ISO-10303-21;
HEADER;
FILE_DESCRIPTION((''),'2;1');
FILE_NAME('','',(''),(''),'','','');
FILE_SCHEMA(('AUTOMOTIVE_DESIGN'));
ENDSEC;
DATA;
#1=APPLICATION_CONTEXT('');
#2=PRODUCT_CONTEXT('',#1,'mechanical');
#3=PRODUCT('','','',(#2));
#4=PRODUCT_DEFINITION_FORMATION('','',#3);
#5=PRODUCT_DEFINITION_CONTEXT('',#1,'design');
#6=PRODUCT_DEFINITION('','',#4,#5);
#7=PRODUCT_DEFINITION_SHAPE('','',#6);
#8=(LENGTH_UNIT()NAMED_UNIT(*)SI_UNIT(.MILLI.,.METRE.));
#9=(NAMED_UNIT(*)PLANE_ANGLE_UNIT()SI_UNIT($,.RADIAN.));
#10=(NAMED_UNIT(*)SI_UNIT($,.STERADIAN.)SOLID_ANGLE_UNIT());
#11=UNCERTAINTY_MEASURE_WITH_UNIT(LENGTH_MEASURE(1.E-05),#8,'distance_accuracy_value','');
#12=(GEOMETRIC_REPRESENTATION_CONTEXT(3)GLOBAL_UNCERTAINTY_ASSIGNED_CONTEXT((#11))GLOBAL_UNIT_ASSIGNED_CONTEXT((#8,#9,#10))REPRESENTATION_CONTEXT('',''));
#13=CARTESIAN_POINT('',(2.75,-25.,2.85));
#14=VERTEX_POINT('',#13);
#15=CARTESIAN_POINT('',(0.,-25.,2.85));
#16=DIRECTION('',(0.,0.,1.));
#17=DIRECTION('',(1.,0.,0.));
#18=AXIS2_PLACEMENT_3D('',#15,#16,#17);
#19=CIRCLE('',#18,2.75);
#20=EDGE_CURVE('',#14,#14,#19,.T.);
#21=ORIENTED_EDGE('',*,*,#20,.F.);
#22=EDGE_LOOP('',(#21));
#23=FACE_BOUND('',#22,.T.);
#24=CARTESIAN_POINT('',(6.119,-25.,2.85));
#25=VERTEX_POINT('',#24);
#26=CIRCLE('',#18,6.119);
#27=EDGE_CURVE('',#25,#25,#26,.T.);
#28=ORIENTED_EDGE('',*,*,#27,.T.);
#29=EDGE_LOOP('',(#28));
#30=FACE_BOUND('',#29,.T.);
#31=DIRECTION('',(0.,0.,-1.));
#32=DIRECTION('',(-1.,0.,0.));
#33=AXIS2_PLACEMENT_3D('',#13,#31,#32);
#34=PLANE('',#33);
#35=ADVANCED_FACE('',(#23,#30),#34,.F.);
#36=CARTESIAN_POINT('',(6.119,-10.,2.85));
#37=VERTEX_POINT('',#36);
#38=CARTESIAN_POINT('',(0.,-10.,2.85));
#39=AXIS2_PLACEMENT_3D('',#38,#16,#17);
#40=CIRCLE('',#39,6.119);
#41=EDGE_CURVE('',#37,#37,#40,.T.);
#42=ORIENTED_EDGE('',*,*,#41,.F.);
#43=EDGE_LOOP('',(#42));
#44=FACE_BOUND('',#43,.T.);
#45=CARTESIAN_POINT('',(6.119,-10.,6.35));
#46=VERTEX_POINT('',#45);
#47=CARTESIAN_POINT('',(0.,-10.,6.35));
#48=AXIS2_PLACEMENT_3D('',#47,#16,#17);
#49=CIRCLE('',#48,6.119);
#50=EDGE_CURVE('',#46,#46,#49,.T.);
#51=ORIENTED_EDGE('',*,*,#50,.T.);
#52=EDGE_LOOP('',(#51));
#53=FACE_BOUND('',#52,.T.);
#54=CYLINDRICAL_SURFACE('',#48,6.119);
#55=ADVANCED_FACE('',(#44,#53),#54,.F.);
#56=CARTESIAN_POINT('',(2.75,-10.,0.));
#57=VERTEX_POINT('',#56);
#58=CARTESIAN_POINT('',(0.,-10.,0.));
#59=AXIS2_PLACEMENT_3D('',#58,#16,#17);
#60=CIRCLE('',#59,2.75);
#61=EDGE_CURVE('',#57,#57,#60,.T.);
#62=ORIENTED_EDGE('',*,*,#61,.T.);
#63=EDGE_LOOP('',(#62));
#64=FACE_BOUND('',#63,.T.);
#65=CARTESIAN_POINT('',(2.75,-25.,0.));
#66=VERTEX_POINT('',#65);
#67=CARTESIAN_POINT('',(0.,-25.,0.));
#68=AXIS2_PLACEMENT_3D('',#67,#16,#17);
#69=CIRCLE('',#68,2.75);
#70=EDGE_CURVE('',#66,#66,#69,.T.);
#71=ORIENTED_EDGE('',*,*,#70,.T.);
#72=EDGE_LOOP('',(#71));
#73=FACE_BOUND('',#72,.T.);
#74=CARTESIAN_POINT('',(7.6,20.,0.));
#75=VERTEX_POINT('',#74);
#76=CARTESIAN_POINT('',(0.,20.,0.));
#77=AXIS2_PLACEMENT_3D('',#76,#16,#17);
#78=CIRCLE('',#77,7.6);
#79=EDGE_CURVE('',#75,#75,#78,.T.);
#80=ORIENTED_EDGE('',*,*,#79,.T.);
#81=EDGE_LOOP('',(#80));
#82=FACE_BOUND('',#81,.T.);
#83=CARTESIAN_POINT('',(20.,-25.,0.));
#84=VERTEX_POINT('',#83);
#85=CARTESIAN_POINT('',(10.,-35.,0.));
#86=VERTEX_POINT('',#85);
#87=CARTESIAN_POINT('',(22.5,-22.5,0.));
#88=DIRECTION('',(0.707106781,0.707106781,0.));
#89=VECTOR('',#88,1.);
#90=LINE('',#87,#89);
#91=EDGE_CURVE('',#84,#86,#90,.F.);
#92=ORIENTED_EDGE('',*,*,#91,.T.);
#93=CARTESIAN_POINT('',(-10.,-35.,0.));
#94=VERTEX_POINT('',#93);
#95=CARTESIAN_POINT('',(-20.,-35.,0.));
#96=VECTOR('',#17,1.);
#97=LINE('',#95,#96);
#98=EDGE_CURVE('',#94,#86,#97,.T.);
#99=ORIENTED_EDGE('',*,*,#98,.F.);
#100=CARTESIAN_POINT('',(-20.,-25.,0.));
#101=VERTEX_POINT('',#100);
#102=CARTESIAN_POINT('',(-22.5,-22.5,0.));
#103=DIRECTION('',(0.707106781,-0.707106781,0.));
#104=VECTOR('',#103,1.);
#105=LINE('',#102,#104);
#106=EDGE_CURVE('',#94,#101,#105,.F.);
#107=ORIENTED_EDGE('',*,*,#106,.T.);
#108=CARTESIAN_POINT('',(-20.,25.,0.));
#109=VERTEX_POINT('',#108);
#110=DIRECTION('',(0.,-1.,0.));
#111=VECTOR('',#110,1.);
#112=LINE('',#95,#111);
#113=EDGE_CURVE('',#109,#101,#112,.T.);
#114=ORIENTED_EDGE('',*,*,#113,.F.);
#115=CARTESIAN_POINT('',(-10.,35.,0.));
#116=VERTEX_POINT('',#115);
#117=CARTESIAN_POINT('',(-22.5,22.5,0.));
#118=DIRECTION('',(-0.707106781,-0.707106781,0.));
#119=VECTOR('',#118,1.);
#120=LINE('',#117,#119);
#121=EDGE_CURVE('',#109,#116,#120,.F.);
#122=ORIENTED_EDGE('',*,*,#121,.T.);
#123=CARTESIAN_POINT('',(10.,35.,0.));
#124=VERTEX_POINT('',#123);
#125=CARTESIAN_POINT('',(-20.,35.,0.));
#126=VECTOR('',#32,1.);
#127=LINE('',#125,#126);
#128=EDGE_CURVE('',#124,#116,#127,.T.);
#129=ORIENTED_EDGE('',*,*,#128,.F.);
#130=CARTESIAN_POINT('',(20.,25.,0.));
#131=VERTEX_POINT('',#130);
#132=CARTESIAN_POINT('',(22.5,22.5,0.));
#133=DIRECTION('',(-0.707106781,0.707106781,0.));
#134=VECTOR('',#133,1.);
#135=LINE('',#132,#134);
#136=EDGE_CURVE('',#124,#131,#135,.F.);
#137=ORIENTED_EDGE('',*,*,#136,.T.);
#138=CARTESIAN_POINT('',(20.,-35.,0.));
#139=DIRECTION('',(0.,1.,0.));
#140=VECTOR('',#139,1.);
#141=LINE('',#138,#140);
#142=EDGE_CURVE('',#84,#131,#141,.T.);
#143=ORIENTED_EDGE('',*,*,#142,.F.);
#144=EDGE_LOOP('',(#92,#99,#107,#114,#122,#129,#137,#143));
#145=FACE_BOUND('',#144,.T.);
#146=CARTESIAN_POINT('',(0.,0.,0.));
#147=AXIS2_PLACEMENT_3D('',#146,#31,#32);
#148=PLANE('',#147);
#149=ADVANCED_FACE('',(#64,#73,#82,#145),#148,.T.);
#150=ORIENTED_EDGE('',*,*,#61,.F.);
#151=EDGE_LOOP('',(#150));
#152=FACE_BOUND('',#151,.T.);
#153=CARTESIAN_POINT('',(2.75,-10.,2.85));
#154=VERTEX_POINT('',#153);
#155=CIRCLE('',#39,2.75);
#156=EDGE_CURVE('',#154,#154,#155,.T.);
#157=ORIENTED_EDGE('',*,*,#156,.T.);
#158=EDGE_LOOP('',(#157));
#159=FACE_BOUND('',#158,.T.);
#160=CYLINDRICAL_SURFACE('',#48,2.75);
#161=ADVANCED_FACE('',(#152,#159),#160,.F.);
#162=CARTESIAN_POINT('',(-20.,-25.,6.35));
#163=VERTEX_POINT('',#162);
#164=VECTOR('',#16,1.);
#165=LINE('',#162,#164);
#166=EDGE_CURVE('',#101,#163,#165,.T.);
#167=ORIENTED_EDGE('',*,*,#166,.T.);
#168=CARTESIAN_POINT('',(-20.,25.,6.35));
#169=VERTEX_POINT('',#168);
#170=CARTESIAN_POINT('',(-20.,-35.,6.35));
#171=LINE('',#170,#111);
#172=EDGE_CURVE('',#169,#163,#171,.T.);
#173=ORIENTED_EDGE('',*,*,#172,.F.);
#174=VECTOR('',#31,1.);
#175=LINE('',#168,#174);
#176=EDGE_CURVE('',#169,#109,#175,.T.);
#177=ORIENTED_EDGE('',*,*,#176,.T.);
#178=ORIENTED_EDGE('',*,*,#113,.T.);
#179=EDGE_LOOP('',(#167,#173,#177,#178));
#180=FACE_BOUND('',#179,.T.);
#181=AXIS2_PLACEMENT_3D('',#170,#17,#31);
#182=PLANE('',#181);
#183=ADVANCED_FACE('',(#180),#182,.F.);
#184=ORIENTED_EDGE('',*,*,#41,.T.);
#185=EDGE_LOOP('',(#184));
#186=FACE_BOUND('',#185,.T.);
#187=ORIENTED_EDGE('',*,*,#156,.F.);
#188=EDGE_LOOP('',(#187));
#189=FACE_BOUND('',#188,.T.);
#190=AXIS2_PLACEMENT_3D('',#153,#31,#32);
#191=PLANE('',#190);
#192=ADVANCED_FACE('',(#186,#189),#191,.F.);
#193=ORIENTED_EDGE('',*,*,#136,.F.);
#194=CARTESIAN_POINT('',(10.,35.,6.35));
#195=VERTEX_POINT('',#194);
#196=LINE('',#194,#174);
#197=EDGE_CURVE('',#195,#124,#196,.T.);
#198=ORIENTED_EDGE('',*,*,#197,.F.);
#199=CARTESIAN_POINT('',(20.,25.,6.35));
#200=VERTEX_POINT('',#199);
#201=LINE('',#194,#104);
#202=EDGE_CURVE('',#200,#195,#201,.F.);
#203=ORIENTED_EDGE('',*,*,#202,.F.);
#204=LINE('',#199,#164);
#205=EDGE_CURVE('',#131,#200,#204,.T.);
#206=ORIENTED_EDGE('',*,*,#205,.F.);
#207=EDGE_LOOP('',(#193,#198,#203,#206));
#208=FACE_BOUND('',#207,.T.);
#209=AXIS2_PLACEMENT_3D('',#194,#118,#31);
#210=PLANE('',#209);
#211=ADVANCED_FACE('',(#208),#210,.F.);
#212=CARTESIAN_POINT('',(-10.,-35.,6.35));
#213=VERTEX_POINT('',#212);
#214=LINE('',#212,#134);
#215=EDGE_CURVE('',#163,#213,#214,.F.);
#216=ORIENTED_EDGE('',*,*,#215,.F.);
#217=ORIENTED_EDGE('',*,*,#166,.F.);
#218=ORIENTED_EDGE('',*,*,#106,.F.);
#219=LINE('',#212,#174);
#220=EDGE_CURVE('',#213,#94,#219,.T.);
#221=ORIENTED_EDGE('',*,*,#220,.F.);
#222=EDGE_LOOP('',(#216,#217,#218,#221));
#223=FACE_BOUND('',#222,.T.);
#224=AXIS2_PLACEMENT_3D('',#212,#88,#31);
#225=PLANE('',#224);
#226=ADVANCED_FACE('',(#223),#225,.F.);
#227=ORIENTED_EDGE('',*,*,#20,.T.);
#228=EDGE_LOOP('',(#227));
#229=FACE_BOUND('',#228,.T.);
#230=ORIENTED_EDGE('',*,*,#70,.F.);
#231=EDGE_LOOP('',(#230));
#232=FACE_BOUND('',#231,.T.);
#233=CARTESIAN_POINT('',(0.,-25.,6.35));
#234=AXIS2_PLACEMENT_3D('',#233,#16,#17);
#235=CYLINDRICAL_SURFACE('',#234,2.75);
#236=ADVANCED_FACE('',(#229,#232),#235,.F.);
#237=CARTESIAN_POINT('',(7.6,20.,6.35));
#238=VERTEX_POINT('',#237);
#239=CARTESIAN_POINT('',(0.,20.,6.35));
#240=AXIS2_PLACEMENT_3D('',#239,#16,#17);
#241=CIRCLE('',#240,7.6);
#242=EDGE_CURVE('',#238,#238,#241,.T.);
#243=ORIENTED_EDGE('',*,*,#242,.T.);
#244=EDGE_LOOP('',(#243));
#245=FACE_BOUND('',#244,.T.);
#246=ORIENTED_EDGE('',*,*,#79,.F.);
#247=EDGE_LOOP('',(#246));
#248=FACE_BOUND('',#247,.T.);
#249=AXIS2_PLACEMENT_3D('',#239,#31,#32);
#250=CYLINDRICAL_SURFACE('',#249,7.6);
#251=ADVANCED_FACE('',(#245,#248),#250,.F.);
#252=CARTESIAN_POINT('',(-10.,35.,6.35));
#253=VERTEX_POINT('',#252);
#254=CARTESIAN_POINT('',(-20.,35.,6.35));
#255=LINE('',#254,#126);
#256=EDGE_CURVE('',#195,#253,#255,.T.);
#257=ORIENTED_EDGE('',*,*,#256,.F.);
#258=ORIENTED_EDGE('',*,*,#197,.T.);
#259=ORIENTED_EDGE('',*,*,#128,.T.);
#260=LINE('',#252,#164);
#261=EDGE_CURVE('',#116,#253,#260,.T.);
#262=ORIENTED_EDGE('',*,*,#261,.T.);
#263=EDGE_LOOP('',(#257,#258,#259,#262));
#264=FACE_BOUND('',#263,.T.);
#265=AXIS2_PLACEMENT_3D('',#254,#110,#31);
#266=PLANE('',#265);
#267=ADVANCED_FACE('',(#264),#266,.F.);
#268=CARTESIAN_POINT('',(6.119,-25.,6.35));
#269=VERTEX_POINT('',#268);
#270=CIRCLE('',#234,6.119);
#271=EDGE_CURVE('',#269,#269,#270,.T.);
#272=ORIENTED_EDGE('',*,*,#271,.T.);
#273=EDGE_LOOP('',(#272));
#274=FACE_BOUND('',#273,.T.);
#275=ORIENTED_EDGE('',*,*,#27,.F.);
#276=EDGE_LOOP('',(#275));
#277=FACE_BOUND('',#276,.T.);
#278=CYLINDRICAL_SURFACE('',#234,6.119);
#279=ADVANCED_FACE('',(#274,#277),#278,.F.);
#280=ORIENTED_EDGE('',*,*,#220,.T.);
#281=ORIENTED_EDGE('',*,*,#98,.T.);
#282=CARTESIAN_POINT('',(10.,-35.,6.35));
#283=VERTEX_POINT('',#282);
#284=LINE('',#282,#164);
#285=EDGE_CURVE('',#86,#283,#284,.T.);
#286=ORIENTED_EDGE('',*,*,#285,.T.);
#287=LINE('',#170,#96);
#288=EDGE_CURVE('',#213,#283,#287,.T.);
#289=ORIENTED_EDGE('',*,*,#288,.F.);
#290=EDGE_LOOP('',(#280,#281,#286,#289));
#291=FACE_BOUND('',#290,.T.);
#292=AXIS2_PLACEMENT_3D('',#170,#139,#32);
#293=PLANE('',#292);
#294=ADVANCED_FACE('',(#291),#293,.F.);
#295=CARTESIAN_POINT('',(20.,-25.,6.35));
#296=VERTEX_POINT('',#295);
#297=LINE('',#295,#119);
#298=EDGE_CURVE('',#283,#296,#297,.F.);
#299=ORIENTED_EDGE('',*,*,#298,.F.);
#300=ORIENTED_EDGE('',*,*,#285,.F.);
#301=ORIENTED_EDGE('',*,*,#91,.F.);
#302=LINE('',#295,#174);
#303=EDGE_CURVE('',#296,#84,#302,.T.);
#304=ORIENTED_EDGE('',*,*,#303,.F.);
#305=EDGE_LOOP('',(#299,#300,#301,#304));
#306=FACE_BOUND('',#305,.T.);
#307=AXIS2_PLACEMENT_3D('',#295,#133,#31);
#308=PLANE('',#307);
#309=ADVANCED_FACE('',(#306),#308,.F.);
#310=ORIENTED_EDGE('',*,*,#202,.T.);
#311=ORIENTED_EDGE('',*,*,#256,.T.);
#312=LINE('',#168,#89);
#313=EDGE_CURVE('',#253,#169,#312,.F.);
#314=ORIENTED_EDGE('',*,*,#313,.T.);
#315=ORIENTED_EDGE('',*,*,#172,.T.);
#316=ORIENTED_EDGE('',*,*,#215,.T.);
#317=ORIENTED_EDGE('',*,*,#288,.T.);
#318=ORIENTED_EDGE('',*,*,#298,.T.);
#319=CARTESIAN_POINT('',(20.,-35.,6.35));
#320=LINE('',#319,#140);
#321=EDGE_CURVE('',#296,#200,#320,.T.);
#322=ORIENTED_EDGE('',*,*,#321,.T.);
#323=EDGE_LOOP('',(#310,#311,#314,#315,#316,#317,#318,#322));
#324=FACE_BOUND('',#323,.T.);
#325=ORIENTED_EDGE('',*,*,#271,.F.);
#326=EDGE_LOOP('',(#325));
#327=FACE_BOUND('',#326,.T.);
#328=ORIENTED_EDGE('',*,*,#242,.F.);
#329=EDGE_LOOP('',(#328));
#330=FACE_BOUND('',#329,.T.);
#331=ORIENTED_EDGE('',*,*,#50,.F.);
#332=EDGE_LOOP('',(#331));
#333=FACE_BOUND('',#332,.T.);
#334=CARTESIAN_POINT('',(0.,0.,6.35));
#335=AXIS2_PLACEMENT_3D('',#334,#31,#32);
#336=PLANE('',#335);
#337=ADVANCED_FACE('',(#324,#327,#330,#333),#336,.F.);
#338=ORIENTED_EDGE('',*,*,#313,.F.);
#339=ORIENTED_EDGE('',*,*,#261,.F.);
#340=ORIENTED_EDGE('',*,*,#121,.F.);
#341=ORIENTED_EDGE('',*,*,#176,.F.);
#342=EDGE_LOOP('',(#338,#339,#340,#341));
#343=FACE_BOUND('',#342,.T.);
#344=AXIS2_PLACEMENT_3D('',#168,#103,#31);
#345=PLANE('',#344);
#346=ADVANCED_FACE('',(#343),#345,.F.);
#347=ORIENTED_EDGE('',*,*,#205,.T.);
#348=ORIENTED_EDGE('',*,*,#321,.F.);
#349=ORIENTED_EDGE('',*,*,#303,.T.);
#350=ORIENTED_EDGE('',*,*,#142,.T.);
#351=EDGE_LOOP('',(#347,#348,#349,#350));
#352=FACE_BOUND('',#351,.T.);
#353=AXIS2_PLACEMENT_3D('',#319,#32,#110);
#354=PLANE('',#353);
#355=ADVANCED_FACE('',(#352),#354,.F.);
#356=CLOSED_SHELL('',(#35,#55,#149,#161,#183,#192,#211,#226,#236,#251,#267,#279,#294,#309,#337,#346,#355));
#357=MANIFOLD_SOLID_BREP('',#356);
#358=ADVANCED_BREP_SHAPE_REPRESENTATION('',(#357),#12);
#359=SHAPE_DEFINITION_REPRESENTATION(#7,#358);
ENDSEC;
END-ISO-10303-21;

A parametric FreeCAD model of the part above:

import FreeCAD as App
import Part
import Sketcher

V = App.Vector


def edges_at(feature, points):
    """Names of the edges that pass closest to the given points."""
    edges = feature.Shape.Edges
    near = lambda p: min(range(len(edges)), key=lambda i: edges[i].distToShape(Part.Vertex(*p))[0])
    return sorted({f"Edge{near(p) + 1}" for p in points})


def add_polygon(sketch, points):
    """Adds a closed chain of lines whose ends are joined by coincident constraints."""
    first, n = sketch.GeometryCount, len(points)
    for a, b in zip(points, points[1:] + points[:1]):
        sketch.addGeometry(Part.LineSegment(App.Vector(*a, 0), App.Vector(*b, 0)), False)
    for i in range(n):
        sketch.addConstraint(Sketcher.Constraint("Coincident", first + i, 2, first + (i + 1) % n, 1))

doc = App.newDocument("Part")
body = doc.addObject("PartDesign::Body", "Body")

# Sketch on XY plane
sketch1 = doc.addObject("Sketcher::SketchObject", "Sketch")
body.addObject(sketch1)
sketch1.AttachmentSupport = (doc.XY_Plane, [""])
sketch1.MapMode = "FlatFace"
add_polygon(sketch1, [(-20, 35), (-20, -35), (20, -35), (20, 35)])  # lines 0-3
sketch1.addGeometry(Part.Circle(V(0, 20, 0), V(0, 0, 1), 8), False)  # 4
sketch1.addConstraint(Sketcher.Constraint("Vertical", 0))
sketch1.addConstraint(Sketcher.Constraint("Horizontal", 1))
sketch1.addConstraint(Sketcher.Constraint("Vertical", 2))
sketch1.addConstraint(Sketcher.Constraint("Horizontal", 3))
sketch1.addConstraint(Sketcher.Constraint("Symmetric", 0, 2, 2, 2, -1, 1))
sketch1.addConstraint(Sketcher.Constraint("PointOnObject", 4, 3, -2))
sketch1.addConstraint(Sketcher.Constraint("Diameter", 4, 15.2))
sketch1.addConstraint(Sketcher.Constraint("DistanceX", 1, 1, 1, 2, 40.0))
sketch1.addConstraint(Sketcher.Constraint("DistanceY", 0, 2, 0, 1, 70.0))
sketch1.addConstraint(Sketcher.Constraint("DistanceY", -1, 1, 4, 3, 20.0))
pad1 = doc.addObject("PartDesign::Pad", "Pad")
body.addObject(pad1)
pad1.Profile = sketch1
pad1.Length = 6.35

# Sketch on XY plane
sketch2 = doc.addObject("Sketcher::SketchObject", "Sketch001")
body.addObject(sketch2)
sketch2.AttachmentSupport = (doc.XY_Plane, [""])
sketch2.MapMode = "FlatFace"
sketch2.AttachmentOffset = App.Placement(V(0, 0, 6.35), App.Rotation())
sketch2.addGeometry(Part.Circle(V(0, -10, 0), V(0, 0, 1), 2.8), False)
sketch2.addGeometry(Part.Circle(V(0, -25, 0), V(0, 0, 1), 2.8), False)
sketch2.addConstraint(Sketcher.Constraint("Equal", 0, 1))
sketch2.addConstraint(Sketcher.Constraint("PointOnObject", 0, 3, -2))
sketch2.addConstraint(Sketcher.Constraint("PointOnObject", 1, 3, -2))
sketch2.addConstraint(Sketcher.Constraint("Diameter", 0, 5.5))
sketch2.addConstraint(Sketcher.Constraint("DistanceY", 0, 3, -1, 1, 10.0))
sketch2.addConstraint(Sketcher.Constraint("DistanceY", 1, 3, -1, 1, 25.0))
doc.recompute()
hole = doc.addObject("PartDesign::Hole", "Hole")
body.addObject(hole)
hole.Profile = sketch2
hole.ThreadType = "None"
hole.Diameter = 5.5
hole.DepthType = "ThroughAll"
hole.HoleCutType = "Counterbore"
hole.HoleCutDiameter = 12.238
hole.HoleCutDepth = 3.5
doc.recompute()

chamfer = doc.addObject("PartDesign::Chamfer", "Chamfer")
body.addObject(chamfer)
chamfer.Base = (hole, edges_at(hole, [
    (-20, 35, 3.175),
    (20, 35, 3.175),
    (20, -35, 3.175),
    (-20, -35, 3.175),
]))
chamfer.Size = 10

doc.recompute()
